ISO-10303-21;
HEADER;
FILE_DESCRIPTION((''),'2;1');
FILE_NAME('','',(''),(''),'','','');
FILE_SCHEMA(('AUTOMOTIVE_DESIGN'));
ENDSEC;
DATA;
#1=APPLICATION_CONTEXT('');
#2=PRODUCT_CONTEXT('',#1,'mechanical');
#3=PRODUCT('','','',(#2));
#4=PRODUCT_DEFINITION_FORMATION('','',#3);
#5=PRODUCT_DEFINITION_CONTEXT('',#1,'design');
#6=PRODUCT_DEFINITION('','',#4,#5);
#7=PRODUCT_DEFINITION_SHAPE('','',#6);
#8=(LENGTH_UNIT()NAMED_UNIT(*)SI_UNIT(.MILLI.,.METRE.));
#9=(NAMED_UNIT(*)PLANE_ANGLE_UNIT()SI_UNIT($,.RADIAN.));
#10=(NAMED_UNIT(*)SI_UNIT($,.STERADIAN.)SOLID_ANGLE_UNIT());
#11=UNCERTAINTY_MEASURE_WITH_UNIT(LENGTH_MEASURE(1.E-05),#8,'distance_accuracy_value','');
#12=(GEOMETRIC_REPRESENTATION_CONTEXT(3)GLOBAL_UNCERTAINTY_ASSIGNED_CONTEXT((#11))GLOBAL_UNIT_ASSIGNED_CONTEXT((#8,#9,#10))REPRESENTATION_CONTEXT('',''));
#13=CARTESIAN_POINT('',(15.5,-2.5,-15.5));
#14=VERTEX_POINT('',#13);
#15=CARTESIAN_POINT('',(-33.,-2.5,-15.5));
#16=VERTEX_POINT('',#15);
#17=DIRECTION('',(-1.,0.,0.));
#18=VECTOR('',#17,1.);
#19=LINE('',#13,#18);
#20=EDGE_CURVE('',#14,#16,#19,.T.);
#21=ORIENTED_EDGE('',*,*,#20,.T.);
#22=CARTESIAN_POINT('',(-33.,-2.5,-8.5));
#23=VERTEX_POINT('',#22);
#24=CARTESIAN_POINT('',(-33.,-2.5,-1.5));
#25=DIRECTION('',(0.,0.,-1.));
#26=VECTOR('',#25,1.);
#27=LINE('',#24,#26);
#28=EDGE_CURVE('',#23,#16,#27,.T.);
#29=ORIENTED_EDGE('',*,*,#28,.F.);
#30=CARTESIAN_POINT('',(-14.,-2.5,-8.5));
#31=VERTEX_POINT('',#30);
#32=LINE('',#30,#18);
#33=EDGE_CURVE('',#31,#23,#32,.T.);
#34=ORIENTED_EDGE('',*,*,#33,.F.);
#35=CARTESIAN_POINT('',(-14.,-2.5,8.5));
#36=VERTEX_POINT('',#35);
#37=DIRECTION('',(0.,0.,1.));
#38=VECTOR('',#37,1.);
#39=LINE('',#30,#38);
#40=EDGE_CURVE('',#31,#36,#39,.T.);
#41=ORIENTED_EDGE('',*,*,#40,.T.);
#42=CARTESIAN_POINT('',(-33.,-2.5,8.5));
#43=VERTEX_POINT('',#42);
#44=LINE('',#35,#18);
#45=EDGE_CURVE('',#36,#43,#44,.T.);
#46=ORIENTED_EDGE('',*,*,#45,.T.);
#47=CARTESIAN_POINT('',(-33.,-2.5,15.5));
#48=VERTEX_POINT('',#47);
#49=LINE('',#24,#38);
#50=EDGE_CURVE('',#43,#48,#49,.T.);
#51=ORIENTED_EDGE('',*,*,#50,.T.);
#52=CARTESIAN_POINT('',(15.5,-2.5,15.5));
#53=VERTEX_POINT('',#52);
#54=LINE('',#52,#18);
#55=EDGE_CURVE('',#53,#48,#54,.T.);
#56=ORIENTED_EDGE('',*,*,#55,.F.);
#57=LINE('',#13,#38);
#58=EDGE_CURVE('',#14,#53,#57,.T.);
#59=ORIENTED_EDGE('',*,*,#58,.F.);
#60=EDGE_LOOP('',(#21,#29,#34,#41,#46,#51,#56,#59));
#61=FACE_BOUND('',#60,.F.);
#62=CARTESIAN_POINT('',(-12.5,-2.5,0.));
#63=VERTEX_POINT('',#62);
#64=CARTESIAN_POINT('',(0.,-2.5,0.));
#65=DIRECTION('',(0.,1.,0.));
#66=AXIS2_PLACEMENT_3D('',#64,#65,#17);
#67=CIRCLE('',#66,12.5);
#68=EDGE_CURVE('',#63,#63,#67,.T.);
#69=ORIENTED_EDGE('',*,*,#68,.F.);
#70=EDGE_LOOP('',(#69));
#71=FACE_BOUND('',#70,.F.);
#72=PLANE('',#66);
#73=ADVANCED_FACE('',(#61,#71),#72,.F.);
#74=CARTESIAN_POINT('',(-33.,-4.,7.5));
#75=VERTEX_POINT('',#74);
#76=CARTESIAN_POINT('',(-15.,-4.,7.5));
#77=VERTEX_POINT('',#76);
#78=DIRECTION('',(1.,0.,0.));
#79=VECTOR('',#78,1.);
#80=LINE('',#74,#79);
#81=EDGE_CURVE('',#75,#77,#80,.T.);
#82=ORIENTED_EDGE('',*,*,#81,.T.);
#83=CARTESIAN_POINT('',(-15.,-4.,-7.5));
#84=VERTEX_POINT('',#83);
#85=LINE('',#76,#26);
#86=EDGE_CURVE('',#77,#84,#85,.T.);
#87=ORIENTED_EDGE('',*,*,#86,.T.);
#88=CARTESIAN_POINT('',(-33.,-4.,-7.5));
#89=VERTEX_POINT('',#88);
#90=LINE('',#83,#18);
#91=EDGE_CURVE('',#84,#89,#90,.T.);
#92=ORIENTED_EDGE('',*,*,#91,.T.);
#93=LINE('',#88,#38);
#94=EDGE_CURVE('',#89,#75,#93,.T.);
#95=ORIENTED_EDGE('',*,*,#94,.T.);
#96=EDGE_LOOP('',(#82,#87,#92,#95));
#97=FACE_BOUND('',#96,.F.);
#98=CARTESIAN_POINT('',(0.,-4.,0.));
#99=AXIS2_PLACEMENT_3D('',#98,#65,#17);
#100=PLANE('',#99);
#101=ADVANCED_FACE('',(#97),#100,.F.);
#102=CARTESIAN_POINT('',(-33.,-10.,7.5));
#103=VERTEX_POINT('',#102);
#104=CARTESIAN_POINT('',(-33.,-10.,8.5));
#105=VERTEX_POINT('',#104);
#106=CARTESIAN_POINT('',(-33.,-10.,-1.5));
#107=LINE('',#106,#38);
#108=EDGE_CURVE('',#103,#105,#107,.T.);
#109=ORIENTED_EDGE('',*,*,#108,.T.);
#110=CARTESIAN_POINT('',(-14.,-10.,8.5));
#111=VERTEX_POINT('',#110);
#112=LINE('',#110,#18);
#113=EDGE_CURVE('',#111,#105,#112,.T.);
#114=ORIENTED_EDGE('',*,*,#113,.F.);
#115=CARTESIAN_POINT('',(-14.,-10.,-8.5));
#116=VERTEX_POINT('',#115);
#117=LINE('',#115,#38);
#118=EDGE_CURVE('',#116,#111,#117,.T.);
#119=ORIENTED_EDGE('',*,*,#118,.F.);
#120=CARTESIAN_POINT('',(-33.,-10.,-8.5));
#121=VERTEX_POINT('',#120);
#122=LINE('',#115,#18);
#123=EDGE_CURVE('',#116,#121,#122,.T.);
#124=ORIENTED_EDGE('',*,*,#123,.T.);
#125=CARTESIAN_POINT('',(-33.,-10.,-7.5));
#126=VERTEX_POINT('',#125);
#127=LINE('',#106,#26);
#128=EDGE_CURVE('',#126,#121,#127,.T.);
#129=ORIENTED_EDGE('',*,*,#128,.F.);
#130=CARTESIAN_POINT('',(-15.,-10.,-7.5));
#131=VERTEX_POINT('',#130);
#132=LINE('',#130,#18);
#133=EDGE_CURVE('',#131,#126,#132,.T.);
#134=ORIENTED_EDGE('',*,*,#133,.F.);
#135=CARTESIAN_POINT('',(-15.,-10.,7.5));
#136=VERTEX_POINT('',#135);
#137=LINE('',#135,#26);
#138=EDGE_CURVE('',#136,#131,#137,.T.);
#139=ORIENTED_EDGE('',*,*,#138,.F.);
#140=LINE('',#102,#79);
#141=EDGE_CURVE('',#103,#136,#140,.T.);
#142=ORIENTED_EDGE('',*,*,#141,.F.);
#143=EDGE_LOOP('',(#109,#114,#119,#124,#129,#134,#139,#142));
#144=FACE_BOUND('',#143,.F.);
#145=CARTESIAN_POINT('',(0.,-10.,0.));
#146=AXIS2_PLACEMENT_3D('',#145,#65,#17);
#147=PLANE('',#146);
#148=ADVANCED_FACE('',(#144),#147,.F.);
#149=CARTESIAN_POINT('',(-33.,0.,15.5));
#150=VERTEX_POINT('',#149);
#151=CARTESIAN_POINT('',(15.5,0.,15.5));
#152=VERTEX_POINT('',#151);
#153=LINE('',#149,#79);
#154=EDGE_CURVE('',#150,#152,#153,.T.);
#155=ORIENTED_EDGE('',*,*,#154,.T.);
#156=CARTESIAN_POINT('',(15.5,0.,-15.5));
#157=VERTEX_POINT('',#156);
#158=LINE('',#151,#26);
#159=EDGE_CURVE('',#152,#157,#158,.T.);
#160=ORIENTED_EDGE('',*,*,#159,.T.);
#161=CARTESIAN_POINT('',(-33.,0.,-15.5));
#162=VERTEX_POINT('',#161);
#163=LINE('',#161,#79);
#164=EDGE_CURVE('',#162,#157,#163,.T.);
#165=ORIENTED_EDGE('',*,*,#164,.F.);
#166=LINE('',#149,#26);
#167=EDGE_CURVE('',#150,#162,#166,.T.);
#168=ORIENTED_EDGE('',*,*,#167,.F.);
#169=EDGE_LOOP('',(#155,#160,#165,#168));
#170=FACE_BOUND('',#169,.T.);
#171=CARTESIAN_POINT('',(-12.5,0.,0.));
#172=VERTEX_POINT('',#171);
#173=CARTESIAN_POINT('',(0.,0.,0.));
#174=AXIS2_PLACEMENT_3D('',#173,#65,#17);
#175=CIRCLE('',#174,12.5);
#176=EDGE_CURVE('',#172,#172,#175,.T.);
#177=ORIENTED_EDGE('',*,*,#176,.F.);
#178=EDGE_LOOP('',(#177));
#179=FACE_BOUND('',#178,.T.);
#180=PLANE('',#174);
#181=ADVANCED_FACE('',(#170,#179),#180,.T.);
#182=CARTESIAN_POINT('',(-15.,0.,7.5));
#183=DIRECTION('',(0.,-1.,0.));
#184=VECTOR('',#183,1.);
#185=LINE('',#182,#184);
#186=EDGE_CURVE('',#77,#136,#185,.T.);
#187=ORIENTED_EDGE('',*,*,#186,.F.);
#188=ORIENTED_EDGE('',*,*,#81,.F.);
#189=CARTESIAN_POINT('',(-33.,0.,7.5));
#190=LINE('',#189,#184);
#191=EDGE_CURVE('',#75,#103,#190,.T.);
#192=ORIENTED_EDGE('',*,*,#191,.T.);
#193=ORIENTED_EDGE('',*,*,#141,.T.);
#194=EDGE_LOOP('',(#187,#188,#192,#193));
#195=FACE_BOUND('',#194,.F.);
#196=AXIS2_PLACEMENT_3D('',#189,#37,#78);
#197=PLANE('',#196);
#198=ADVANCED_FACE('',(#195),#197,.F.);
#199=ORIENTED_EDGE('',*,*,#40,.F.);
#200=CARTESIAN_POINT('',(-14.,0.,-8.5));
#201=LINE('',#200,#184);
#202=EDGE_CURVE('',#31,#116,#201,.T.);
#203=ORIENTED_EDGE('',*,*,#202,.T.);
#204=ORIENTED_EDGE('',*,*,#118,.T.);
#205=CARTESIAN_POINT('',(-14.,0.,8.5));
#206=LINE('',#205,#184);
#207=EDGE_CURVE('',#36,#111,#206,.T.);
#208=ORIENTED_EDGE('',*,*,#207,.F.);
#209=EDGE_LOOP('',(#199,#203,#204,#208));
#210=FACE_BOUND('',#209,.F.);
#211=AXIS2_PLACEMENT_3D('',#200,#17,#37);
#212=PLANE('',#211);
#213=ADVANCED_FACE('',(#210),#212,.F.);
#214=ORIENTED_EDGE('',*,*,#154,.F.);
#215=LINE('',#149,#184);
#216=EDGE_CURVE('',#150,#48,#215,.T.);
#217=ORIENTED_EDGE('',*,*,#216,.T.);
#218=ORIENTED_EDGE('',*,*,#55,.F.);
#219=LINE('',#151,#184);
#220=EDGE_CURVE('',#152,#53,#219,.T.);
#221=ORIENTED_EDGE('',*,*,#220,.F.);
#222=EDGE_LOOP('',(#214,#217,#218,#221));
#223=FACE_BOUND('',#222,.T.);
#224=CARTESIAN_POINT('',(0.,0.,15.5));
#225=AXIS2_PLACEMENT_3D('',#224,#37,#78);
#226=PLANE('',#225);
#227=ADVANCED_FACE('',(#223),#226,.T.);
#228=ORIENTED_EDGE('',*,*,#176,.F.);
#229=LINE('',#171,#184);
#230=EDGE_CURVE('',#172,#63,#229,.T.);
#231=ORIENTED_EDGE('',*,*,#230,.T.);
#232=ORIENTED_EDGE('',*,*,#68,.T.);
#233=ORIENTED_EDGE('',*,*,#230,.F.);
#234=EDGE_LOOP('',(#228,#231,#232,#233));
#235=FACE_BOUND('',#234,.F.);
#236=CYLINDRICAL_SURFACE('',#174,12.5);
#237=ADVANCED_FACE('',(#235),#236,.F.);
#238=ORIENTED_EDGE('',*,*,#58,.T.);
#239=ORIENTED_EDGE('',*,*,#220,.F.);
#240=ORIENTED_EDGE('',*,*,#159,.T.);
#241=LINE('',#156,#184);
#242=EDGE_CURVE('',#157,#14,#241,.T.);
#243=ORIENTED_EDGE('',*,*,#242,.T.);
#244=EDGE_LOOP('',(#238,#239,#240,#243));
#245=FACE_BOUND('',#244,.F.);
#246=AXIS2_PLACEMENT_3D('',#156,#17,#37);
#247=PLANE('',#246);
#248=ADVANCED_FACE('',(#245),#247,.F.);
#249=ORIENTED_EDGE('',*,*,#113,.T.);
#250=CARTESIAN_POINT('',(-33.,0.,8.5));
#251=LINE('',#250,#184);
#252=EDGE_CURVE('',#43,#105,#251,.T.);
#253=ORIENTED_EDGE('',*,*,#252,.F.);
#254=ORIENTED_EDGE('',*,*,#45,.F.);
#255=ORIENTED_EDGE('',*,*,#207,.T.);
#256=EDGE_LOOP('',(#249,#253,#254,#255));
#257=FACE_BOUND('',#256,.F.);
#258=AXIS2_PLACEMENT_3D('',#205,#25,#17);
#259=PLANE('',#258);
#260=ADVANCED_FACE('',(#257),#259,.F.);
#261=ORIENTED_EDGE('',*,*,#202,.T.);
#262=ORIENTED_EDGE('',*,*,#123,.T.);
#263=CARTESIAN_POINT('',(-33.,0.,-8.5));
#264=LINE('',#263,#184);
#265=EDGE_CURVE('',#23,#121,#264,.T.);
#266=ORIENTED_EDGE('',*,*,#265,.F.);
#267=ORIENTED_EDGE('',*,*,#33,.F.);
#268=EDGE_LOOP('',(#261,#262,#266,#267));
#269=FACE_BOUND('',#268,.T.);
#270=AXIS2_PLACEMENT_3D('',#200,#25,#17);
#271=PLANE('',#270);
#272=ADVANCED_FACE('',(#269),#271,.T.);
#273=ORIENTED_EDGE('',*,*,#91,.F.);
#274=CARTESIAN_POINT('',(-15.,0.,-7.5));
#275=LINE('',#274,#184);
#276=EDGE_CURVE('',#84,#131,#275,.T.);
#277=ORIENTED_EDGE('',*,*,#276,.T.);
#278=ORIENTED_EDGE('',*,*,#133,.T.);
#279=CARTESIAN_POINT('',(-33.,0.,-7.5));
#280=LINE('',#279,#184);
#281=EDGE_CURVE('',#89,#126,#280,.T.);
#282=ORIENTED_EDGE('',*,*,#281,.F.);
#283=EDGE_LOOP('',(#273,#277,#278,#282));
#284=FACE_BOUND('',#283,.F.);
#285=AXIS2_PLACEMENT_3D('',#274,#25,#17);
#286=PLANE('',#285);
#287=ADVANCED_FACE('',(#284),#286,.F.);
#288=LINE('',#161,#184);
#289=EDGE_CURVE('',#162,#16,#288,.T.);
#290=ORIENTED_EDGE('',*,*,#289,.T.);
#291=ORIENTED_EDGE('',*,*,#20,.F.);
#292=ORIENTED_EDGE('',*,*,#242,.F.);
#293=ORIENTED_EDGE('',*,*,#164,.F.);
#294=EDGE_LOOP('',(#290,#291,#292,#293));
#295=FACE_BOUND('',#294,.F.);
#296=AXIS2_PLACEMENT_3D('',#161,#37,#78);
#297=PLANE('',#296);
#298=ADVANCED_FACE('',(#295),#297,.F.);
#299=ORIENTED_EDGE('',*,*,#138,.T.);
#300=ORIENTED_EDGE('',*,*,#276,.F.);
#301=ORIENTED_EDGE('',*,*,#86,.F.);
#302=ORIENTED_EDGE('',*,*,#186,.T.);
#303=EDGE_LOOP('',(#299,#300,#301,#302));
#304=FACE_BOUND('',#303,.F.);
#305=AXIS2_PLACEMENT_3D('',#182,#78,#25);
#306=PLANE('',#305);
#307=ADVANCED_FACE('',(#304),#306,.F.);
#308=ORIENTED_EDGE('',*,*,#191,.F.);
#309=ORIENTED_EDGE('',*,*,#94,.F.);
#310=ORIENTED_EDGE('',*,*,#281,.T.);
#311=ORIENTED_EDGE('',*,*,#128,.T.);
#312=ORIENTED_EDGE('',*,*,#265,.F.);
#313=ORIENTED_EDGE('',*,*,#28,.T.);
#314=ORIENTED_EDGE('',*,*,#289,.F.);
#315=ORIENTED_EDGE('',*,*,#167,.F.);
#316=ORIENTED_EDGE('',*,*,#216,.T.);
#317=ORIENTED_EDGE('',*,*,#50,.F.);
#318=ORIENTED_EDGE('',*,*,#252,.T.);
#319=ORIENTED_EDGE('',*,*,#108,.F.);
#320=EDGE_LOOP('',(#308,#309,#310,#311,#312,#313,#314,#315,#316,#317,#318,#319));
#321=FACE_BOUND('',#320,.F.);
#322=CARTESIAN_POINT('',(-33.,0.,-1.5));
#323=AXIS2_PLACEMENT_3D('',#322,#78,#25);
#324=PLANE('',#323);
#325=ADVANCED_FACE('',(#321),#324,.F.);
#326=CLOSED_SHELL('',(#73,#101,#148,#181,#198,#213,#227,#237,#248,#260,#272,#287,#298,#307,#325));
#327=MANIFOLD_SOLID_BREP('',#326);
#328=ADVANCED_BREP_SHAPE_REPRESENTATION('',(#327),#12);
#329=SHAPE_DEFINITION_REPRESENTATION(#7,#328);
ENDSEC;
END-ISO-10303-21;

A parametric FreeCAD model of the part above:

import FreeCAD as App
import Part
import Sketcher

V = App.Vector


def add_polygon(sketch, points):
    """Adds a closed chain of lines whose ends are joined by coincident constraints."""
    first, n = sketch.GeometryCount, len(points)
    for a, b in zip(points, points[1:] + points[:1]):
        sketch.addGeometry(Part.LineSegment(App.Vector(*a, 0), App.Vector(*b, 0)), False)
    for i in range(n):
        sketch.addConstraint(Sketcher.Constraint("Coincident", first + i, 2, first + (i + 1) % n, 1))

doc = App.newDocument("Part")
body = doc.addObject("PartDesign::Body", "Body")

# Sketch on XZ plane
sketch1 = doc.addObject("Sketcher::SketchObject", "Sketch")
body.addObject(sketch1)
sketch1.AttachmentSupport = (doc.XZ_Plane, [""])
sketch1.MapMode = "FlatFace"
add_polygon(sketch1, [(-33, -16), (-33, -8), (-14, -8), (-14, 8), (-33, 8), (-33, 16), (16, 16), (16, -16)])  # lines 0-7
sketch1.addGeometry(Part.Circle(V(0, 0, 0), V(0, 0, 1), 12), False)  # 8
sketch1.addConstraint([
    Sketcher.Constraint("Vertical", 0),
    Sketcher.Constraint("Horizontal", 1),
    Sketcher.Constraint("Vertical", 2),
    Sketcher.Constraint("Horizontal", 3),
    Sketcher.Constraint("Vertical", 4),
    Sketcher.Constraint("Horizontal", 5),
    Sketcher.Constraint("Vertical", 6),
    Sketcher.Constraint("Horizontal", 7),
    Sketcher.Constraint("Coincident", 8, 3, -1, 1),
    Sketcher.Constraint("Symmetric", 0, 2, 3, 2, -1),
    Sketcher.Constraint("Equal", 0, 4),
    Sketcher.Constraint("Diameter", 8, 25.0),
    Sketcher.Constraint("DistanceX", 1, 2, -1, 1, 14.0),
    Sketcher.Constraint("DistanceX", 1, 1, 1, 2, 19.0),
    Sketcher.Constraint("DistanceY", 0, 1, 0, 2, 7.0),
    Sketcher.Constraint("DistanceY", 2, 1, 2, 2, 17.0),
    Sketcher.Constraint("DistanceX", 5, 1, 5, 2, 48.5),
])
pad1 = doc.addObject("PartDesign::Pad", "Pad")
body.addObject(pad1)
pad1.Profile = sketch1
pad1.Length = 2.5

# Sketch on XZ plane
sketch2 = doc.addObject("Sketcher::SketchObject", "Sketch001")
body.addObject(sketch2)
sketch2.AttachmentSupport = (doc.XZ_Plane, [""])
sketch2.MapMode = "FlatFace"
add_polygon(sketch2, [(-33, -8.5), (-33, -7.5), (-15, -7.5), (-15, 7.5), (-33, 7.5), (-33, 8.5), (-14, 8.5), (-14, -8.5)])  # lines 0-7
sketch2.addConstraint([
    Sketcher.Constraint("Vertical", 0),
    Sketcher.Constraint("Horizontal", 1),
    Sketcher.Constraint("Vertical", 2),
    Sketcher.Constraint("Horizontal", 3),
    Sketcher.Constraint("Vertical", 4),
    Sketcher.Constraint("Horizontal", 5),
    Sketcher.Constraint("Vertical", 6),
    Sketcher.Constraint("Horizontal", 7),
    Sketcher.Constraint("Symmetric", 0, 2, 3, 2, -1),
    Sketcher.Constraint("Equal", 0, 4),
    Sketcher.Constraint("DistanceY", 0, 1, 0, 2, 1.0),
    Sketcher.Constraint("DistanceY", 2, 1, 2, 2, 15.0),
    Sketcher.Constraint("DistanceX", 1, 2, -1, 1, 15.0),
    Sketcher.Constraint("DistanceX", 5, 2, -1, 1, 14.0),
    Sketcher.Constraint("DistanceX", 1, 1, 1, 2, 18.0),
])
pad2 = doc.addObject("PartDesign::Pad", "Pad001")
body.addObject(pad2)
pad2.Profile = sketch2
pad2.Length = 10

# Sketch on XZ plane
sketch3 = doc.addObject("Sketcher::SketchObject", "Sketch002")
body.addObject(sketch3)
sketch3.AttachmentSupport = (doc.XZ_Plane, [""])
sketch3.MapMode = "FlatFace"
add_polygon(sketch3, [(-33, -8), (-33, 8), (-15, 8), (-15, -8)])  # lines 0-3
sketch3.addConstraint([
    Sketcher.Constraint("Vertical", 0),
    Sketcher.Constraint("Horizontal", 1),
    Sketcher.Constraint("Vertical", 2),
    Sketcher.Constraint("Horizontal", 3),
    Sketcher.Constraint("DistanceY", 0, 1, 0, 2, 15.0),
    Sketcher.Constraint("DistanceX", 1, 2, -1, 1, 15.0),
    Sketcher.Constraint("DistanceX", 1, 1, 1, 2, 18.0),
    Sketcher.Constraint("DistanceY", -1, 1, 0, 2, 7.5),
])
pad3 = doc.addObject("PartDesign::Pad", "Pad002")
body.addObject(pad3)
pad3.Profile = sketch3
pad3.Length = 4

doc.recompute()
